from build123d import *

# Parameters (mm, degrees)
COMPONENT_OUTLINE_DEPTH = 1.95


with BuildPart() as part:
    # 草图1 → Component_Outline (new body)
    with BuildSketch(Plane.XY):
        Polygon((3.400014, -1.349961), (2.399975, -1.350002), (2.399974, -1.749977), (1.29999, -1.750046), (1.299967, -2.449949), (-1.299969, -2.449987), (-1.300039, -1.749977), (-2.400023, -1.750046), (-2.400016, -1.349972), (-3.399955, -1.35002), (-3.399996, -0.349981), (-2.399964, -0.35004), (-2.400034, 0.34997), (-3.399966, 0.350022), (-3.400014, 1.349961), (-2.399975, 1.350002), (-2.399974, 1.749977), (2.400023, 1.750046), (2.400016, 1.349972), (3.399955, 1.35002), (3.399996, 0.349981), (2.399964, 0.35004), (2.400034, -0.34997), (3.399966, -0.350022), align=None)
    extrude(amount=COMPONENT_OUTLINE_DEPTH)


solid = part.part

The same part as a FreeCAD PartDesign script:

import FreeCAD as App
import Part
import Sketcher
from FreeCAD import Vector
Q = App.Units.Quantity

doc = App.newDocument("Part")
body = doc.addObject("PartDesign::Body", "Body")

# Sketch on XY plane
sketch1 = doc.addObject("Sketcher::SketchObject", "Sketch")
body.addObject(sketch1)
sketch1.AttachmentSupport = (doc.XY_Plane, [""])
sketch1.MapMode = "FlatFace"
sketch1.addGeometry([
    Part.LineSegment(Vector(2.4, -1.35, 0), Vector(3.4, -1.35, 0)),  # 0
    Part.LineSegment(Vector(3.4, -1.35, 0), Vector(3.4, -0.35, 0)),  # 1
    Part.LineSegment(Vector(3.4, -0.35, 0), Vector(2.4, -0.35, 0)),  # 2
    Part.LineSegment(Vector(2.4, -0.35, 0), Vector(2.4, 0.35, 0)),  # 3
    Part.LineSegment(Vector(2.4, 0.35, 0), Vector(3.4, 0.35, 0)),  # 4
    Part.LineSegment(Vector(3.4, 0.35, 0), Vector(3.4, 1.35, 0)),  # 5
    Part.LineSegment(Vector(3.4, 1.35, 0), Vector(2.4, 1.35, 0)),  # 6
    Part.LineSegment(Vector(2.4, 1.35, 0), Vector(2.4, 1.75, 0)),  # 7
    Part.LineSegment(Vector(2.4, 1.75, 0), Vector(-2.4, 1.75, 0)),  # 8
    Part.LineSegment(Vector(-2.4, 1.75, 0), Vector(-2.4, 1.35, 0)),  # 9
    Part.LineSegment(Vector(-2.4, 1.35, 0), Vector(-3.4, 1.35, 0)),  # 10
    Part.LineSegment(Vector(-3.4, 1.35, 0), Vector(-3.4, 0.35, 0)),  # 11
    Part.LineSegment(Vector(-3.4, 0.35, 0), Vector(-2.4, 0.35, 0)),  # 12
    Part.LineSegment(Vector(-2.4, 0.35, 0), Vector(-2.4, -0.35, 0)),  # 13
    Part.LineSegment(Vector(-2.4, -0.35, 0), Vector(-3.4, -0.35, 0)),  # 14
    Part.LineSegment(Vector(-3.4, -0.35, 0), Vector(-3.4, -1.35, 0)),  # 15
    Part.LineSegment(Vector(-3.4, -1.35, 0), Vector(-2.4, -1.35, 0)),  # 16
    Part.LineSegment(Vector(-2.4, -1.35, 0), Vector(-2.4, -1.75, 0)),  # 17
    Part.LineSegment(Vector(-2.4, -1.75, 0), Vector(-1.3, -1.75, 0)),  # 18
    Part.LineSegment(Vector(-1.3, -1.75, 0), Vector(-1.3, -2.45, 0)),  # 19
    Part.LineSegment(Vector(-1.3, -2.45, 0), Vector(1.3, -2.45, 0)),  # 20
    Part.LineSegment(Vector(1.3, -2.45, 0), Vector(1.3, -1.75, 0)),  # 21
    Part.LineSegment(Vector(1.3, -1.75, 0), Vector(2.4, -1.75, 0)),  # 22
    Part.LineSegment(Vector(2.4, -1.75, 0), Vector(2.4, -1.35, 0)),  # 23
], False)
sketch1.addConstraint([
    Sketcher.Constraint("Coincident", 0, 2, 1, 1),
    Sketcher.Constraint("Coincident", 1, 2, 2, 1),
    Sketcher.Constraint("Coincident", 2, 2, 3, 1),
    Sketcher.Constraint("Coincident", 3, 2, 4, 1),
    Sketcher.Constraint("Coincident", 4, 2, 5, 1),
    Sketcher.Constraint("Coincident", 5, 2, 6, 1),
    Sketcher.Constraint("Coincident", 6, 2, 7, 1),
    Sketcher.Constraint("Coincident", 7, 2, 8, 1),
    Sketcher.Constraint("Coincident", 8, 2, 9, 1),
    Sketcher.Constraint("Coincident", 9, 2, 10, 1),
    Sketcher.Constraint("Coincident", 10, 2, 11, 1),
    Sketcher.Constraint("Coincident", 11, 2, 12, 1),
    Sketcher.Constraint("Coincident", 12, 2, 13, 1),
    Sketcher.Constraint("Coincident", 13, 2, 14, 1),
    Sketcher.Constraint("Coincident", 14, 2, 15, 1),
    Sketcher.Constraint("Coincident", 15, 2, 16, 1),
    Sketcher.Constraint("Coincident", 16, 2, 17, 1),
    Sketcher.Constraint("Coincident", 17, 2, 18, 1),
    Sketcher.Constraint("Coincident", 18, 2, 19, 1),
    Sketcher.Constraint("Coincident", 19, 2, 20, 1),
    Sketcher.Constraint("Coincident", 20, 2, 21, 1),
    Sketcher.Constraint("Coincident", 21, 2, 22, 1),
    Sketcher.Constraint("Coincident", 22, 2, 23, 1),
    Sketcher.Constraint("Coincident", 23, 2, 0, 1),
    Sketcher.Constraint("Vertical", 9),
    Sketcher.Constraint("Vertical", 23),
    Sketcher.Constraint("Symmetric", 0, 2, 10, 2, -1, 1),
    Sketcher.Constraint("Symmetric", 1, 2, 11, 2, -1, 1),
    Sketcher.Constraint("Symmetric", 2, 2, 12, 2, -1, 1),
    Sketcher.Constraint("Symmetric", 3, 2, 13, 2, -1, 1),
    Sketcher.Constraint("Symmetric", 4, 2, 14, 2, -1, 1),
    Sketcher.Constraint("Symmetric", 5, 2, 15, 2, -1, 1),
    Sketcher.Constraint("Symmetric", 6, 2, 16, 2, -1, 1),
    Sketcher.Constraint("Symmetric", 7, 2, 17, 2, -1, 1),
    Sketcher.Constraint("Symmetric", 8, 2, 22, 2, -1, 1),
    Sketcher.Constraint("Perpendicular", 0, 5),
    Sketcher.Constraint("Perpendicular", 1, 6),
    Sketcher.Constraint("Perpendicular", 5, 10),
    Sketcher.Constraint("Parallel", 13, 19),
    Sketcher.Constraint("Parallel", 8, 20),
    Sketcher.Constraint("Parallel", 18, 22),
    Sketcher.Constraint("Horizontal", 17, 2, 21, 2),
    Sketcher.Constraint("Equal", 0, 5),
    Sketcher.Constraint("Equal", 1, 6),
    Sketcher.Constraint("Equal", 13, 19),
    Sketcher.Constraint("Equal", 18, 22),
    Sketcher.Constraint("DistanceX", 3, 2, 1, 2, Q("1.000002 mm")),
    Sketcher.Constraint("DistanceY", 0, 2, 3, 2, Q("1.700001 mm")),
    Sketcher.Constraint("DistanceX", 9, 2, 7, 2, Q("4.799998 mm")),
    Sketcher.Constraint("DistanceX", 11, 2, 2, 2, Q("5.8 mm")),
    Sketcher.Constraint("DistanceX", 20, 2, 1, 2, Q("2.099999 mm")),
    Sketcher.Constraint("DistanceY", -1, 1, 9, 2, Q("1.350002 mm")),
    Sketcher.Constraint("Distance", 0, Q("1.000039 mm")),
    Sketcher.Constraint("Distance", 1, Q("0.999939 mm")),
    Sketcher.Constraint("Distance", 3, Q("0.70001 mm")),
    Sketcher.Constraint("DistanceY", 9, 2, 9, 1, Q("0.399975 mm")),
    Sketcher.Constraint("DistanceY", 0, 2, -1, 1, Q("1.349961 mm")),
    Sketcher.Constraint("DistanceY", -1, 1, 4, 2, Q("0.349981 mm")),
    Sketcher.Constraint("DistanceX", 18, 2, -1, 1, Q("1.300039 mm")),
    Sketcher.Constraint("DistanceX", 19, 2, -1, 1, Q("1.299969 mm")),
    Sketcher.Constraint("DistanceY", 20, 2, -1, 1, Q("2.449949 mm")),
    Sketcher.Constraint("DistanceX", -1, 1, 21, 2, Q("1.29999 mm")),
    Sketcher.Constraint("DistanceX", 3, 2, 4, 2, Q("1.000032 mm")),
])
pad1 = doc.addObject("PartDesign::Pad", "Pad")
body.addObject(pad1)
pad1.Profile = sketch1
pad1.Length = 1.95

doc.recompute()
